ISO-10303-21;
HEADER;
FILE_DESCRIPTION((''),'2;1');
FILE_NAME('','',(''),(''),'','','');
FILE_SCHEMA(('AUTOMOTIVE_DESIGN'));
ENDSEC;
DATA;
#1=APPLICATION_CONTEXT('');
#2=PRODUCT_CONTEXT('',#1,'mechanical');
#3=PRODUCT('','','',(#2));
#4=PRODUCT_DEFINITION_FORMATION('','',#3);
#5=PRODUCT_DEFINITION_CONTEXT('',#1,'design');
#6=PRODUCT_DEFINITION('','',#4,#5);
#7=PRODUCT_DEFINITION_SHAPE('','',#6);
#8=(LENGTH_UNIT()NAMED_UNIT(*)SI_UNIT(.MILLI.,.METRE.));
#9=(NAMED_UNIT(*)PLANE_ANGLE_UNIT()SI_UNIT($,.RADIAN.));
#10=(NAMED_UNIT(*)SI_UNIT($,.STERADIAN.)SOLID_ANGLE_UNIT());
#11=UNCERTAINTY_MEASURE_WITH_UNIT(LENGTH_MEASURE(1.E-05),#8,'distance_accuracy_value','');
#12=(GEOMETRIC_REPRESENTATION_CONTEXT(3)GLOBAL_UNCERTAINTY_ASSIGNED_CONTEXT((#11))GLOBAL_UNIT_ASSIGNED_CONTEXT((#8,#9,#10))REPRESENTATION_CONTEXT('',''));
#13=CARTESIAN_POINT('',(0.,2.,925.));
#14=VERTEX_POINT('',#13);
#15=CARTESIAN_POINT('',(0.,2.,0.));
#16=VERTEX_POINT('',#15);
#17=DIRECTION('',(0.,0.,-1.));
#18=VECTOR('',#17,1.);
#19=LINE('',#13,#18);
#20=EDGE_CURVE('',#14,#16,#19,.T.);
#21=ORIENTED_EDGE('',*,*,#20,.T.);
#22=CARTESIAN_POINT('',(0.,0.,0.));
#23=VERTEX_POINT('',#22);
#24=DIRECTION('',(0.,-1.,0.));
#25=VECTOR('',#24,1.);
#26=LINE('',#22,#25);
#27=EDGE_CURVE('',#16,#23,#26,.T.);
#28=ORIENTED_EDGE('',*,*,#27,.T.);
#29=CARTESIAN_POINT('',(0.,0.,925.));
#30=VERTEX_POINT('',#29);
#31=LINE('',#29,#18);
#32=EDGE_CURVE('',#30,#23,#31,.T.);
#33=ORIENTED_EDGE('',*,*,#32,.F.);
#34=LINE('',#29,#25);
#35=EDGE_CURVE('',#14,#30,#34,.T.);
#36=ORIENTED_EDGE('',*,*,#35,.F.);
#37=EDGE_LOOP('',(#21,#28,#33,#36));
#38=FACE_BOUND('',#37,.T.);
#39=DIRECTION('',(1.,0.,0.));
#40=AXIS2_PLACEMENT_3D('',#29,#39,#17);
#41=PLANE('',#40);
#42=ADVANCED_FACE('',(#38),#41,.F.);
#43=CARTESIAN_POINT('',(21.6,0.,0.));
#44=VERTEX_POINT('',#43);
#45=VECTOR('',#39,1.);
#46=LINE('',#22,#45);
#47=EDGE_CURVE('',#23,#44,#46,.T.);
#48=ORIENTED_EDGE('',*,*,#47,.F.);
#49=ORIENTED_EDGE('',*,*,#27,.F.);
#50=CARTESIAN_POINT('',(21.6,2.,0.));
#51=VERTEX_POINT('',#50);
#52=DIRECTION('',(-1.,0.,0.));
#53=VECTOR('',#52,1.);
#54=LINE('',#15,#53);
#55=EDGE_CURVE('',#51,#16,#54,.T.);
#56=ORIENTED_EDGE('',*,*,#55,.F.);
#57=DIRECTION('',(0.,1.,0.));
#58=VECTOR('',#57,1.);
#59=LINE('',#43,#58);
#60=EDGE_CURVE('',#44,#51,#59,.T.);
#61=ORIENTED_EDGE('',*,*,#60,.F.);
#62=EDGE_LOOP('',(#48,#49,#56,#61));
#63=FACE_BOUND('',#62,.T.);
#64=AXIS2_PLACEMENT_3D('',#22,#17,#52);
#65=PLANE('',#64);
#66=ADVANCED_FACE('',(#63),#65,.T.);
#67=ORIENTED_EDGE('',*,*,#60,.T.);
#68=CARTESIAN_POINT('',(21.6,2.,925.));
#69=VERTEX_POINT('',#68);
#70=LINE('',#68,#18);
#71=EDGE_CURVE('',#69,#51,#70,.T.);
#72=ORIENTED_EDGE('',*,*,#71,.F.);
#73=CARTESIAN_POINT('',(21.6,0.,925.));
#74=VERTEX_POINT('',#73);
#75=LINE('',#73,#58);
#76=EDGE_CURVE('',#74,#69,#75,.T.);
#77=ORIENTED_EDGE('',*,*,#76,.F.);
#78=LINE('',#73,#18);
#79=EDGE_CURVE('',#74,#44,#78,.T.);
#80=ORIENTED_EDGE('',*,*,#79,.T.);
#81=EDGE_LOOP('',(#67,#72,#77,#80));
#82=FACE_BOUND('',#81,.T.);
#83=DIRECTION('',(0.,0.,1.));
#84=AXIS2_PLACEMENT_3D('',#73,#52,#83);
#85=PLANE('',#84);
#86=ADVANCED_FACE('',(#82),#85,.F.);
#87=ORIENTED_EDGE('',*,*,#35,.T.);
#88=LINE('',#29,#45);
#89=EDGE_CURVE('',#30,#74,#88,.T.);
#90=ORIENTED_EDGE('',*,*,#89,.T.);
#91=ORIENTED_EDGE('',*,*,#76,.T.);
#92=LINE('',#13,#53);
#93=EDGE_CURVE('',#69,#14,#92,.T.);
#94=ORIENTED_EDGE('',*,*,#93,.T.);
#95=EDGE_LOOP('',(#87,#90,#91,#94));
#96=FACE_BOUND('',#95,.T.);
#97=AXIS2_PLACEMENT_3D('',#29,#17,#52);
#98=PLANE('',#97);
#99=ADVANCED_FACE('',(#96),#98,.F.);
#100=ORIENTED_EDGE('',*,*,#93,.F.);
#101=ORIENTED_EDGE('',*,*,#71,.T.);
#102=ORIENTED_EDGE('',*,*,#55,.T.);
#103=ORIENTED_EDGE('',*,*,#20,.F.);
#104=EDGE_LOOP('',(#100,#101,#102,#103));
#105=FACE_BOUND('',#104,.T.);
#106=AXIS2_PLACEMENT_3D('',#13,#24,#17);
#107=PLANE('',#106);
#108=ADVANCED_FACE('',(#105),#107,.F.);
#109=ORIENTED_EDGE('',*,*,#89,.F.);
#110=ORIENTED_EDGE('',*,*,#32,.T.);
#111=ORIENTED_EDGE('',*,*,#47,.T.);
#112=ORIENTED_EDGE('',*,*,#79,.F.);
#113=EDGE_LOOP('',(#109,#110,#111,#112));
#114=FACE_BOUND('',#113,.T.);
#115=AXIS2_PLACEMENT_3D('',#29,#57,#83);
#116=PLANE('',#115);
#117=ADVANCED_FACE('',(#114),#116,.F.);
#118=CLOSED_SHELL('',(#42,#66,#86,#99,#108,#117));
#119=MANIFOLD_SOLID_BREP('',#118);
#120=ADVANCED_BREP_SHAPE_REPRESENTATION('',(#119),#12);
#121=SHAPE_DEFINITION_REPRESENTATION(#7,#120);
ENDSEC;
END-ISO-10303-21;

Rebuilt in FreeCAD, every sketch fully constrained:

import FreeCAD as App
import Part
import Sketcher

V = App.Vector

doc = App.newDocument("Part")
body = doc.addObject("PartDesign::Body", "Body")

# Sketch on XY plane
sketch1 = body.newObject("Sketcher::SketchObject", "Sketch")
sketch1.AttachmentSupport = (doc.getObject("XY_Plane"), [""])
sketch1.MapMode = "FlatFace"
sketch1.addGeometry(Part.LineSegment(V(0, 2, 0), V(0, 0, 0)), False)
sketch1.addGeometry(Part.LineSegment(V(0, 0, 0), V(21.6, 0, 0)), False)
sketch1.addGeometry(Part.LineSegment(V(21.6, 0, 0), V(21.6, 2, 0)), False)
sketch1.addGeometry(Part.LineSegment(V(21.6, 2, 0), V(0, 2, 0)), False)
sketch1.addConstraint(Sketcher.Constraint("Coincident", 0, 2, 1, 1))
sketch1.addConstraint(Sketcher.Constraint("Coincident", 1, 2, 2, 1))
sketch1.addConstraint(Sketcher.Constraint("Coincident", 2, 2, 3, 1))
sketch1.addConstraint(Sketcher.Constraint("Coincident", 3, 2, 0, 1))
sketch1.addConstraint(Sketcher.Constraint("Vertical", 0))
sketch1.addConstraint(Sketcher.Constraint("Horizontal", 1))
sketch1.addConstraint(Sketcher.Constraint("Vertical", 2))
sketch1.addConstraint(Sketcher.Constraint("Horizontal", 3))
sketch1.addConstraint(Sketcher.Constraint("Coincident", 0, 2, -1, 1))
sketch1.addConstraint(Sketcher.Constraint("DistanceY", 0, 2, 0, 1, 2.0))
sketch1.addConstraint(Sketcher.Constraint("DistanceX", 1, 1, 1, 2, 21.6))
pad1 = body.newObject("PartDesign::Pad", "Pad")
pad1.Profile = sketch1
pad1.Length = 925

doc.recompute()
